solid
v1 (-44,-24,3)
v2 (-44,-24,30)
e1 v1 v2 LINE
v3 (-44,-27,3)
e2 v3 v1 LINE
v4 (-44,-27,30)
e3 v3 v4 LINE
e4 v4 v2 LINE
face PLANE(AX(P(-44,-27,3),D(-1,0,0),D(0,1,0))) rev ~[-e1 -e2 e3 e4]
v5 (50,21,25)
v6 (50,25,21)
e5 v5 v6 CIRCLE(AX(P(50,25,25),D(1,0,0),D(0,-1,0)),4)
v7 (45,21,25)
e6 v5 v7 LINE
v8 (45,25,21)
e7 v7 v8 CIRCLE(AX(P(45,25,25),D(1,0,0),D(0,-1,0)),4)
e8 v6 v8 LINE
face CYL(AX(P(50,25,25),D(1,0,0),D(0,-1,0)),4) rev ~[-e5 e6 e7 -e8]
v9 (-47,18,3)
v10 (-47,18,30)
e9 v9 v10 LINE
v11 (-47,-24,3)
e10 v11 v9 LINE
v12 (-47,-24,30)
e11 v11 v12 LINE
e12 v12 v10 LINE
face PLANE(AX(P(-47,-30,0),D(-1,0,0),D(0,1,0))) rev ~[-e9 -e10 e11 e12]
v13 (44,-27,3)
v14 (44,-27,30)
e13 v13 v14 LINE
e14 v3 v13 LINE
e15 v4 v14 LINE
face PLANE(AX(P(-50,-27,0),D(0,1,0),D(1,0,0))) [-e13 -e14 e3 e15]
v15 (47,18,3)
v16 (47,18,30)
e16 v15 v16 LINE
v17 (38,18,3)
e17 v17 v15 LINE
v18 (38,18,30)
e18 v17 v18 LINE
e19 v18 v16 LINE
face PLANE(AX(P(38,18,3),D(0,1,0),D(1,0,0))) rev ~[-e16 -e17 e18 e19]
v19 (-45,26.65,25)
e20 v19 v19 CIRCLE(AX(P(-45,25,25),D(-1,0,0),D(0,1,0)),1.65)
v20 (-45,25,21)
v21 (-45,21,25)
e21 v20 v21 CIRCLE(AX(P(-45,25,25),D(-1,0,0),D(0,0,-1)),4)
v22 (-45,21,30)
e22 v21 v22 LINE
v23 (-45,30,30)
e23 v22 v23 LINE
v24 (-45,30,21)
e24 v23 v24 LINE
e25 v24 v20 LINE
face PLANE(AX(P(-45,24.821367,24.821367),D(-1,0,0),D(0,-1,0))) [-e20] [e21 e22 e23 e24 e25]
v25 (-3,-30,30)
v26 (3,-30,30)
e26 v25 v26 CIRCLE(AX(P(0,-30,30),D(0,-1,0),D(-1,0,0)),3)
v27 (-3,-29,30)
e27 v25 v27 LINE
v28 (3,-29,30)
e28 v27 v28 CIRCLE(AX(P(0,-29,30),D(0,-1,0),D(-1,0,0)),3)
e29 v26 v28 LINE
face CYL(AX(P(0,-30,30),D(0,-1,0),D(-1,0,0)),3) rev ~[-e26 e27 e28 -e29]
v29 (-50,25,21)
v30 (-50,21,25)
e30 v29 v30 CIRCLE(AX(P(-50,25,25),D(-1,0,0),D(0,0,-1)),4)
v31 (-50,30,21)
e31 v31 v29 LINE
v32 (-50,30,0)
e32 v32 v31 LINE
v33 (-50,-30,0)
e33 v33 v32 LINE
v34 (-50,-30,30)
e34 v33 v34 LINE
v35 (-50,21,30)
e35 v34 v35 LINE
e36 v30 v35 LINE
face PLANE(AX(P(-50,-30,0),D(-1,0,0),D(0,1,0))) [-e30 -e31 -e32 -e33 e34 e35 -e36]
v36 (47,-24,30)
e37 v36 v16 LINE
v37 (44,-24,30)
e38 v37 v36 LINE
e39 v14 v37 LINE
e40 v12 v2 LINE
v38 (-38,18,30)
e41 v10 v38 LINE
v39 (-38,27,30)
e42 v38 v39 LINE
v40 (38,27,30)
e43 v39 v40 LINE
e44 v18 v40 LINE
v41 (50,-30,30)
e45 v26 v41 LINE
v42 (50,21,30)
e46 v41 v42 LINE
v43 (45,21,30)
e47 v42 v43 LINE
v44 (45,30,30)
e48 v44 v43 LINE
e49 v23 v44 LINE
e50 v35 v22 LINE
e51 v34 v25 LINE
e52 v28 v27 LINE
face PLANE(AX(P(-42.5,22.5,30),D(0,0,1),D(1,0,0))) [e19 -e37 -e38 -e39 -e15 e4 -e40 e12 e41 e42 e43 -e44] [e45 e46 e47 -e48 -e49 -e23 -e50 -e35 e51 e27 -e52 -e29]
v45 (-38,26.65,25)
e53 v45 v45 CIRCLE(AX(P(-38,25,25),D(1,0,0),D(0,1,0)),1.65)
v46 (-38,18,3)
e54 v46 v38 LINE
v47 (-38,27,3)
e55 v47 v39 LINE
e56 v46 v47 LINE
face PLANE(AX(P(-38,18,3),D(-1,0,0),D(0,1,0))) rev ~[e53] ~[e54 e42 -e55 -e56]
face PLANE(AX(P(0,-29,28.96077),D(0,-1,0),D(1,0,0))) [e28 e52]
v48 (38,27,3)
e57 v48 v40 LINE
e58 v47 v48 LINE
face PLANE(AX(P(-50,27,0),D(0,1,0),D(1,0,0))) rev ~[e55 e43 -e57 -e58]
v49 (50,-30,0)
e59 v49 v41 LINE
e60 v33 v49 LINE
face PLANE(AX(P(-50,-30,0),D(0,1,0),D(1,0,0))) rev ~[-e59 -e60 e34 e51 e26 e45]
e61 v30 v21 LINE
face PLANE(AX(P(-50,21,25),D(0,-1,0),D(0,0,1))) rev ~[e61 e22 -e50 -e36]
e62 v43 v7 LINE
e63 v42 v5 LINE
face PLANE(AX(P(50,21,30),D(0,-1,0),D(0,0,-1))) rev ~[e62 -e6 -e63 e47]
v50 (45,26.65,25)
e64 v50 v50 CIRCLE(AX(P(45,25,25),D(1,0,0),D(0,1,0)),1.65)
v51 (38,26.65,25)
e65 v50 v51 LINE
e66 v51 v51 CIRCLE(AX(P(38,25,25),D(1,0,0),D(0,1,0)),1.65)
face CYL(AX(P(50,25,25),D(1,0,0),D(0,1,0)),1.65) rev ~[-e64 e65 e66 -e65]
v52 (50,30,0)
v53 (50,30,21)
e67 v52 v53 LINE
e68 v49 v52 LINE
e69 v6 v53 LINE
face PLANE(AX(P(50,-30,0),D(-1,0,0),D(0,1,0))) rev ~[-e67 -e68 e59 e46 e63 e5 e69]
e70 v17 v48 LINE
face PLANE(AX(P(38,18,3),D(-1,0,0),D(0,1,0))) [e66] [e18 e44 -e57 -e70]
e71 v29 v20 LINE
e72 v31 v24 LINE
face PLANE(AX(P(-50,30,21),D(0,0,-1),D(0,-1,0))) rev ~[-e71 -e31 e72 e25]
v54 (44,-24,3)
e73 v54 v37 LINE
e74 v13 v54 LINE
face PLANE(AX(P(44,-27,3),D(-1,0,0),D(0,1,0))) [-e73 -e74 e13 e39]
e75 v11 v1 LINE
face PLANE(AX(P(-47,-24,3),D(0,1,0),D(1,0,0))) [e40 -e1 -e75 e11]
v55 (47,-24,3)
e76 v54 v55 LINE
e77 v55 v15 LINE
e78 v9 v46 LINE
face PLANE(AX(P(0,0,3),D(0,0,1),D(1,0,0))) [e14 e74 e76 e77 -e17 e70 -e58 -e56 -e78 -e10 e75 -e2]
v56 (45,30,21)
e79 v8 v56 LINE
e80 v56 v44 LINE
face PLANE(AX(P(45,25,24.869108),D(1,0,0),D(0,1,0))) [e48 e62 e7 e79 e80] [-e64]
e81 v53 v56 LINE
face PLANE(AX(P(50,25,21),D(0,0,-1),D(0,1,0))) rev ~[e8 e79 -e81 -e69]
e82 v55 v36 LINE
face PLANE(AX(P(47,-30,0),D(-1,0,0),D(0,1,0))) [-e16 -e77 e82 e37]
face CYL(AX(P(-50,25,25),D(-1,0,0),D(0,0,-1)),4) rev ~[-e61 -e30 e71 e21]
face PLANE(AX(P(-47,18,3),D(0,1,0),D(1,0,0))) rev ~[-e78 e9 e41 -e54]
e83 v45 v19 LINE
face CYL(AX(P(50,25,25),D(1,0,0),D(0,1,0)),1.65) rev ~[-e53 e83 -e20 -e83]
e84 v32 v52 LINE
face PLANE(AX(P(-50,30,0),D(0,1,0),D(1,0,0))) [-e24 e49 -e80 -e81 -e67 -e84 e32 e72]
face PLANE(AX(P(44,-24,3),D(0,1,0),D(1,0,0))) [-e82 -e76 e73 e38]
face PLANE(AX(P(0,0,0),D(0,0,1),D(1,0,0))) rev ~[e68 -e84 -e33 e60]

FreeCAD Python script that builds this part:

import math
import FreeCAD as App
import Part
import Sketcher


def faces_at(feature, points):
    """Names of the faces that lie closest to the given points."""
    faces = feature.Shape.Faces
    near = lambda p: min(range(len(faces)), key=lambda i: faces[i].distToShape(Part.Vertex(*p))[0])
    return sorted({f"Face{near(p) + 1}" for p in points})

doc = App.newDocument("Part")
body = doc.addObject("PartDesign::Body", "Body")

sketch1 = body.newObject("Sketcher::SketchObject", "Sketch")
sketch1.AttachmentSupport = (doc.getObject("XY_Plane"), [""])
sketch1.MapMode = "FlatFace"
sketch1.addGeometry([
    Part.LineSegment(App.Vector(-50, 30, 0), App.Vector(-50, -30, 0)),
    Part.LineSegment(App.Vector(-50, -30, 0), App.Vector(50, -30, 0)),
    Part.LineSegment(App.Vector(50, -30, 0), App.Vector(50, 30, 0)),
    Part.LineSegment(App.Vector(50, 30, 0), App.Vector(-50, 30, 0)),
], False)
sketch1.addConstraint([
    Sketcher.Constraint("Coincident", 0, 2, 1, 1),
    Sketcher.Constraint("Coincident", 1, 2, 2, 1),
    Sketcher.Constraint("Coincident", 2, 2, 3, 1),
    Sketcher.Constraint("Coincident", 3, 2, 0, 1),
    Sketcher.Constraint("Vertical", 0),
    Sketcher.Constraint("Horizontal", 1),
    Sketcher.Constraint("Vertical", 2),
    Sketcher.Constraint("Horizontal", 3),
    Sketcher.Constraint("Symmetric", 0, 2, 2, 2, -1, 1),
    Sketcher.Constraint("DistanceX", 1, 1, 1, 2, 100.0),
    Sketcher.Constraint("DistanceY", 0, 2, 0, 1, 60.0),
])
pad1 = body.newObject("PartDesign::Pad", "Pad")
pad1.Profile = sketch1
pad1.Length = 30
doc.recompute()

thickness = body.newObject("PartDesign::Thickness", "Thickness")
thickness.Base = (pad1, faces_at(pad1, [(0, 0, 30)]))
thickness.Value = 3
thickness.Reversed = True
thickness.Join = "Arc"

sketch2 = body.newObject("Sketcher::SketchObject", "Sketch001")
sketch2.AttachmentSupport = (doc.getObject("XY_Plane"), [""])
sketch2.MapMode = "FlatFace"
sketch2.AttachmentOffset = App.Placement(App.Vector(0, 0, 3), App.Rotation())
sketch2.addGeometry([
    Part.LineSegment(App.Vector(-47, 27, 0), App.Vector(-47, 18, 0)),
    Part.LineSegment(App.Vector(-47, 18, 0), App.Vector(-38, 18, 0)),
    Part.LineSegment(App.Vector(-38, 18, 0), App.Vector(-38, 27, 0)),
    Part.LineSegment(App.Vector(-38, 27, 0), App.Vector(-47, 27, 0)),
    Part.LineSegment(App.Vector(38, 27, 0), App.Vector(38, 18, 0)),
    Part.LineSegment(App.Vector(38, 18, 0), App.Vector(47, 18, 0)),
    Part.LineSegment(App.Vector(47, 18, 0), App.Vector(47, 27, 0)),
    Part.LineSegment(App.Vector(47, 27, 0), App.Vector(38, 27, 0)),
    Part.LineSegment(App.Vector(44, -24, 0), App.Vector(44, -27, 0)),
    Part.LineSegment(App.Vector(44, -27, 0), App.Vector(47, -27, 0)),
    Part.LineSegment(App.Vector(47, -27, 0), App.Vector(47, -24, 0)),
    Part.LineSegment(App.Vector(47, -24, 0), App.Vector(44, -24, 0)),
    Part.LineSegment(App.Vector(-47, -24, 0), App.Vector(-47, -27, 0)),
    Part.LineSegment(App.Vector(-47, -27, 0), App.Vector(-44, -27, 0)),
    Part.LineSegment(App.Vector(-44, -27, 0), App.Vector(-44, -24, 0)),
    Part.LineSegment(App.Vector(-44, -24, 0), App.Vector(-47, -24, 0)),
], False)
sketch2.addConstraint([
    Sketcher.Constraint("Coincident", 0, 2, 1, 1),
    Sketcher.Constraint("Coincident", 1, 2, 2, 1),
    Sketcher.Constraint("Coincident", 2, 2, 3, 1),
    Sketcher.Constraint("Coincident", 3, 2, 0, 1),
    Sketcher.Constraint("Coincident", 4, 2, 5, 1),
    Sketcher.Constraint("Coincident", 5, 2, 6, 1),
    Sketcher.Constraint("Coincident", 6, 2, 7, 1),
    Sketcher.Constraint("Coincident", 7, 2, 4, 1),
    Sketcher.Constraint("Coincident", 8, 2, 9, 1),
    Sketcher.Constraint("Coincident", 9, 2, 10, 1),
    Sketcher.Constraint("Coincident", 10, 2, 11, 1),
    Sketcher.Constraint("Coincident", 11, 2, 8, 1),
    Sketcher.Constraint("Coincident", 12, 2, 13, 1),
    Sketcher.Constraint("Coincident", 13, 2, 14, 1),
    Sketcher.Constraint("Coincident", 14, 2, 15, 1),
    Sketcher.Constraint("Coincident", 15, 2, 12, 1),
    Sketcher.Constraint("Vertical", 0),
    Sketcher.Constraint("Horizontal", 1),
    Sketcher.Constraint("Vertical", 2),
    Sketcher.Constraint("Horizontal", 3),
    Sketcher.Constraint("Vertical", 4),
    Sketcher.Constraint("Horizontal", 5),
    Sketcher.Constraint("Vertical", 6),
    Sketcher.Constraint("Horizontal", 7),
    Sketcher.Constraint("Vertical", 8),
    Sketcher.Constraint("Horizontal", 9),
    Sketcher.Constraint("Vertical", 10),
    Sketcher.Constraint("Horizontal", 11),
    Sketcher.Constraint("Vertical", 12),
    Sketcher.Constraint("Horizontal", 13),
    Sketcher.Constraint("Vertical", 14),
    Sketcher.Constraint("Horizontal", 15),
    Sketcher.Constraint("Symmetric", 3, 2, 9, 2, -1, 1),
    Sketcher.Constraint("Symmetric", 6, 2, 12, 2, -1, 1),
    Sketcher.Constraint("Symmetric", 1, 2, 4, 2, -2),
    Sketcher.Constraint("Symmetric", 3, 2, 6, 2, -2),
    Sketcher.Constraint("Symmetric", 11, 2, 14, 2, -2),
    Sketcher.Constraint("Equal", 7, 0),
    Sketcher.Constraint("Equal", 15, 8),
    Sketcher.Constraint("DistanceX", 1, 1, 1, 2, 9.0),
    Sketcher.Constraint("DistanceX", 9, 1, 9, 2, 3.0),
    Sketcher.Constraint("DistanceX", 0, 2, -1, 1, 47.0),
    Sketcher.Constraint("DistanceY", -1, 1, 0, 2, 18.0),
])
pad2 = body.newObject("PartDesign::Pad", "Pad001")
pad2.Profile = sketch2
pad2.Length = 27

sketch3 = body.newObject("Sketcher::SketchObject", "Sketch002")
sketch3.AttachmentSupport = (doc.getObject("YZ_Plane"), [""])
sketch3.MapMode = "FlatFace"
sketch3.AttachmentOffset = App.Placement(App.Vector(0, 0, 50), App.Rotation())
sketch3.addGeometry(Part.Circle(App.Vector(25, 25, 0), App.Vector(0, 0, 1), 1.65), False)
sketch3.addConstraint([
    Sketcher.Constraint("Diameter", 0, 3.3),
    Sketcher.Constraint("DistanceX", -1, 1, 0, 3, 25.0),
    Sketcher.Constraint("DistanceY", -1, 1, 0, 3, 25.0),
])
pocket1 = body.newObject("PartDesign::Pocket", "Pocket")
pocket1.Profile = sketch3
pocket1.Type = "ThroughAll"

sketch4 = body.newObject("Sketcher::SketchObject", "Sketch003")
sketch4.AttachmentSupport = (doc.getObject("YZ_Plane"), [""])
sketch4.MapMode = "FlatFace"
sketch4.AttachmentOffset = App.Placement(App.Vector(0, 0, 50), App.Rotation())
sketch4.addGeometry([
    Part.ArcOfCircle(Part.Circle(App.Vector(25, 25, 0), App.Vector(0, 0, 1), 4), math.radians(180), math.radians(270)),
    Part.LineSegment(App.Vector(25, 21, 0), App.Vector(30, 21, 0)),
    Part.LineSegment(App.Vector(30, 21, 0), App.Vector(30, 30, 0)),
    Part.LineSegment(App.Vector(30, 30, 0), App.Vector(21, 30, 0)),
    Part.LineSegment(App.Vector(21, 30, 0), App.Vector(21, 25, 0)),
    Part.Circle(App.Vector(25, 25, 0), App.Vector(0, 0, 1), 1.65),
], False)
sketch4.addConstraint([
    Sketcher.Constraint("Tangent", 0, 2, 1, 1),
    Sketcher.Constraint("Coincident", 1, 2, 2, 1),
    Sketcher.Constraint("Coincident", 2, 2, 3, 1),
    Sketcher.Constraint("Coincident", 3, 2, 4, 1),
    Sketcher.Constraint("Tangent", 4, 2, 0, 1),
    Sketcher.Constraint("Horizontal", 1),
    Sketcher.Constraint("Vertical", 2),
    Sketcher.Constraint("Horizontal", 3),
    Sketcher.Constraint("Vertical", 4),
    Sketcher.Constraint("Coincident", 5, 3, 0, 3),
    Sketcher.Constraint("Equal", 3, 2),
    Sketcher.Constraint("Radius", 0, 4.0),
    Sketcher.Constraint("Diameter", 5, 3.3),
    Sketcher.Constraint("DistanceX", 1, 1, 1, 2, 5.0),
    Sketcher.Constraint("DistanceX", -1, 1, 0, 3, 25.0),
    Sketcher.Constraint("DistanceY", -1, 1, 0, 3, 25.0),
])
pocket2 = body.newObject("PartDesign::Pocket", "Pocket001")
pocket2.Profile = sketch4
pocket2.Length = 5

sketch5 = body.newObject("Sketcher::SketchObject", "Sketch004")
sketch5.AttachmentSupport = (doc.getObject("YZ_Plane"), [""])
sketch5.MapMode = "FlatFace"
sketch5.AttachmentOffset = App.Placement(App.Vector(0, 0, -50), App.Rotation())
sketch5.addGeometry([
    Part.ArcOfCircle(Part.Circle(App.Vector(25, 25, 0), App.Vector(0, 0, 1), 4), math.radians(180), math.radians(270)),
    Part.LineSegment(App.Vector(21, 25, 0), App.Vector(21, 30, 0)),
    Part.LineSegment(App.Vector(21, 30, 0), App.Vector(30, 30, 0)),
    Part.LineSegment(App.Vector(30, 30, 0), App.Vector(30, 21, 0)),
    Part.LineSegment(App.Vector(30, 21, 0), App.Vector(25, 21, 0)),
    Part.Circle(App.Vector(25, 25, 0), App.Vector(0, 0, 1), 1.65),
], False)
sketch5.addConstraint([
    Sketcher.Constraint("Tangent", 0, 1, 1, 1),
    Sketcher.Constraint("Coincident", 1, 2, 2, 1),
    Sketcher.Constraint("Coincident", 2, 2, 3, 1),
    Sketcher.Constraint("Coincident", 3, 2, 4, 1),
    Sketcher.Constraint("Tangent", 4, 2, 0, 2),
    Sketcher.Constraint("Vertical", 1),
    Sketcher.Constraint("Horizontal", 2),
    Sketcher.Constraint("Vertical", 3),
    Sketcher.Constraint("Horizontal", 4),
    Sketcher.Constraint("Coincident", 5, 3, 0, 3),
    Sketcher.Constraint("Equal", 4, 1),
    Sketcher.Constraint("Radius", 0, 4.0),
    Sketcher.Constraint("Diameter", 5, 3.3),
    Sketcher.Constraint("DistanceX", 2, 1, 2, 2, 9.0),
    Sketcher.Constraint("DistanceX", -1, 1, 0, 3, 25.0),
    Sketcher.Constraint("DistanceY", -1, 1, 0, 3, 25.0),
])
pocket3 = body.newObject("PartDesign::Pocket", "Pocket002")
pocket3.Profile = sketch5
pocket3.Length = 5
pocket3.Reversed = True

sketch6 = body.newObject("Sketcher::SketchObject", "Sketch005")
sketch6.AttachmentSupport = (doc.getObject("XZ_Plane"), [""])
sketch6.MapMode = "FlatFace"
sketch6.AttachmentOffset = App.Placement(App.Vector(0, 0, 30), App.Rotation())
sketch6.addGeometry([
    Part.ArcOfCircle(Part.Circle(App.Vector(0, 30, 0), App.Vector(0, 0, 1), 3), math.radians(180), math.radians(360)),
    Part.LineSegment(App.Vector(3, 30, 0), App.Vector(-3, 30, 0)),
], False)
sketch6.addConstraint([
    Sketcher.Constraint("Coincident", 0, 1, 1, 2),
    Sketcher.Constraint("Coincident", 1, 1, 0, 2),
    Sketcher.Constraint("Horizontal", 1),
    Sketcher.Constraint("PointOnObject", 0, 3, -2),
    Sketcher.Constraint("Radius", 0, 3.0),
    Sketcher.Constraint("DistanceY", -1, 1, 0, 3, 30.0),
    Sketcher.Constraint("DistanceY", -1, 1, 0, 1, 30.0),
])
pocket4 = body.newObject("PartDesign::Pocket", "Pocket003")
pocket4.Profile = sketch6
pocket4.Length = 1

doc.recompute()
